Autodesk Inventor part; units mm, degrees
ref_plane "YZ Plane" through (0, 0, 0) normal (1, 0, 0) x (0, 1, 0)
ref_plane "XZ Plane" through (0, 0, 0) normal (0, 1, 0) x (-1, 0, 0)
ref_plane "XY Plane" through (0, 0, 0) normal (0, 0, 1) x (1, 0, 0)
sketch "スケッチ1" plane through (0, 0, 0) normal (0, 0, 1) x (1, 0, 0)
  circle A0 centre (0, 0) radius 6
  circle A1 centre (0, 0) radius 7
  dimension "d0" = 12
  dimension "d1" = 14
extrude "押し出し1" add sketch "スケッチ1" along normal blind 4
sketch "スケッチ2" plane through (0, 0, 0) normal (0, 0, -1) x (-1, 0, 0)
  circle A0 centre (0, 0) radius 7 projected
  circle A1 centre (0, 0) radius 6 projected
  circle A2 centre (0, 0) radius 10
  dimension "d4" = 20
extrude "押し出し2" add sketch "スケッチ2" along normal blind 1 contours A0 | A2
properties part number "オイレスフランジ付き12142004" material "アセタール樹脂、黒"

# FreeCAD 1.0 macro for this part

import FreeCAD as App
import Part
import Sketcher
from FreeCAD import Vector

doc = App.newDocument("Part")
params = doc.addObject("Spreadsheet::Sheet", "Params")
for row, (alias, value) in enumerate([
    ("sketch1_diameter", "14 mm"),
    ("sketch1_diameter2", "12 mm"),
    ("pad1_length", "4 mm"),
    ("sketch2_diameter", "20 mm"),
    ("sketch2_diameter2", "12 mm"),
    ("pad2_length", "1 mm"),
], start=1):
    params.set(f"A{row}", alias)
    params.set(f"B{row}", "=" + value)
    params.setAlias(f"B{row}", alias)

body = doc.addObject("PartDesign::Body", "Body")

# Sketch on XY plane
sketch1 = body.newObject("Sketcher::SketchObject", "Sketch")
sketch1.AttachmentSupport = (doc.getObject("XY_Plane"), [""])
sketch1.MapMode = "FlatFace"
sketch1.addGeometry([
    Part.Circle(Vector(0, 0, 0), Vector(0, 0, 1), 7),
    Part.Circle(Vector(0, 0, 0), Vector(0, 0, 1), 6),
], False)
sketch1.addConstraint([
    Sketcher.Constraint("Coincident", 0, 3, -1, 1),
    Sketcher.Constraint("Coincident", 1, 3, -1, 1),
    Sketcher.Constraint("Diameter", 0, 14.0),
    Sketcher.Constraint("Diameter", 1, 12.0),
])
sketch1.setExpression("Constraints[2]", "Params.sketch1_diameter")
sketch1.setExpression("Constraints[3]", "Params.sketch1_diameter2")
pad1 = body.newObject("PartDesign::Pad", "Pad")
pad1.Profile = sketch1
pad1.setExpression("Length", "Params.pad1_length")

# Sketch on XY plane
sketch2 = body.newObject("Sketcher::SketchObject", "Sketch001")
sketch2.AttachmentSupport = (doc.getObject("XY_Plane"), [""])
sketch2.MapMode = "FlatFace"
sketch2.addGeometry([
    Part.Circle(Vector(0, 0, 0), Vector(0, 0, 1), 10),
    Part.Circle(Vector(0, 0, 0), Vector(0, 0, 1), 6),
], False)
sketch2.addConstraint([
    Sketcher.Constraint("Coincident", 0, 3, -1, 1),
    Sketcher.Constraint("Coincident", 1, 3, -1, 1),
    Sketcher.Constraint("Diameter", 0, 20.0),
    Sketcher.Constraint("Diameter", 1, 12.0),
])
sketch2.setExpression("Constraints[2]", "Params.sketch2_diameter")
sketch2.setExpression("Constraints[3]", "Params.sketch2_diameter2")
pad2 = body.newObject("PartDesign::Pad", "Pad001")
pad2.Profile = sketch2
pad2.setExpression("Length", "Params.pad2_length")
pad2.Reversed = True

doc.recompute()
